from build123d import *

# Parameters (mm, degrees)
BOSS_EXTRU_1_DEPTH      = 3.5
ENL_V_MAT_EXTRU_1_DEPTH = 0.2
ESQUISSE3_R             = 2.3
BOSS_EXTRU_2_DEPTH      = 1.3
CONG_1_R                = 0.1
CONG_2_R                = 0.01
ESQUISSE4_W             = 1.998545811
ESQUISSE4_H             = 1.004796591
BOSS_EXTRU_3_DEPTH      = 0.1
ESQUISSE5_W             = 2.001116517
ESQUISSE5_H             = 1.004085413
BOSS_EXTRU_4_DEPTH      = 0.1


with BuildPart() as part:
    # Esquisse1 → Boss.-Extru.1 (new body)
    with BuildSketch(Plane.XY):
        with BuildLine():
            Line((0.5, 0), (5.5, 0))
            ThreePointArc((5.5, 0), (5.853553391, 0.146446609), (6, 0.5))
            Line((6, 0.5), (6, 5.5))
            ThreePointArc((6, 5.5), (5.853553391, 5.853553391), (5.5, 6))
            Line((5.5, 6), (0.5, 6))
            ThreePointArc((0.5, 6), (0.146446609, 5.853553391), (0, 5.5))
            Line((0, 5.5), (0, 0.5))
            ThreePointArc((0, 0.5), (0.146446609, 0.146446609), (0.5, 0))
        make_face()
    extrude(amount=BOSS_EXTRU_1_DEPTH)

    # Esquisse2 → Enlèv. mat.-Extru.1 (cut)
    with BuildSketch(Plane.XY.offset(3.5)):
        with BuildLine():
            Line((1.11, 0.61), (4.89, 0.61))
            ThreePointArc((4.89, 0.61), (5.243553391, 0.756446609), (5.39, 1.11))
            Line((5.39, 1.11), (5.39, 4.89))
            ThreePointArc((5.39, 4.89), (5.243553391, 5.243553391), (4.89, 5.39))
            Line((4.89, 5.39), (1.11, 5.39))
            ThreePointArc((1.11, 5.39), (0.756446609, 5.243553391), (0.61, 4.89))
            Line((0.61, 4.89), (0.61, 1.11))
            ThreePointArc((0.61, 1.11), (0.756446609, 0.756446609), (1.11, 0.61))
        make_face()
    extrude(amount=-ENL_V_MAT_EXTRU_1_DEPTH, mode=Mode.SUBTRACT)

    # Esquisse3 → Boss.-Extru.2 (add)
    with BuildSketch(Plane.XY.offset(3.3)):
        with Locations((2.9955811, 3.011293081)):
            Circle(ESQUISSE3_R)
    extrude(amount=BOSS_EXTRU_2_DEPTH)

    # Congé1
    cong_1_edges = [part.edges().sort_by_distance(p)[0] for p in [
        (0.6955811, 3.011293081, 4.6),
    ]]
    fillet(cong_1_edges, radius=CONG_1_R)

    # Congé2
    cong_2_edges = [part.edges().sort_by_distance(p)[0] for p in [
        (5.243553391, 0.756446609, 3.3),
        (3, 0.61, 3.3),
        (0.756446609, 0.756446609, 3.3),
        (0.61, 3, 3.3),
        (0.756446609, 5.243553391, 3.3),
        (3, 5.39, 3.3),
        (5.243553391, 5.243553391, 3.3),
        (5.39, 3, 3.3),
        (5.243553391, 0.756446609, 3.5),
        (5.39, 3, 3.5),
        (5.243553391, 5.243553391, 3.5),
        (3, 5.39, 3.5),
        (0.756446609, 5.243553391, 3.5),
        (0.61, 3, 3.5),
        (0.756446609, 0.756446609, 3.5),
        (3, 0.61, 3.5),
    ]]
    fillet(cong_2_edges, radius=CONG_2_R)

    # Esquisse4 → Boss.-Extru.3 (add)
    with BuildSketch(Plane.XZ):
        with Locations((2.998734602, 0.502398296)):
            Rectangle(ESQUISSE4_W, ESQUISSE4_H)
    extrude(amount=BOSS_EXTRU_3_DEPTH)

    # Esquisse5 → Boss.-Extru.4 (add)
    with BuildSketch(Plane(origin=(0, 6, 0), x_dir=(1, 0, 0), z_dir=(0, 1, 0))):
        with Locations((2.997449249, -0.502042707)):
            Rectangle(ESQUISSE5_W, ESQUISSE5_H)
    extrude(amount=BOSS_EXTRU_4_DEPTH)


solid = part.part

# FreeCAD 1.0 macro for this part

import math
import FreeCAD as App
import Part
import Sketcher

V = App.Vector
Q = App.Units.Quantity


def edges_at(feature, points):
    """Names of the edges that pass closest to the given points."""
    edges = feature.Shape.Edges
    near = lambda p: min(range(len(edges)), key=lambda i: edges[i].distToShape(Part.Vertex(*p))[0])
    return sorted({f"Edge{near(p) + 1}" for p in points})


def add_polygon(sketch, points):
    """Adds a closed chain of lines whose ends are joined by coincident constraints."""
    first, n = sketch.GeometryCount, len(points)
    for a, b in zip(points, points[1:] + points[:1]):
        sketch.addGeometry(Part.LineSegment(App.Vector(*a, 0), App.Vector(*b, 0)), False)
    for i in range(n):
        sketch.addConstraint(Sketcher.Constraint("Coincident", first + i, 2, first + (i + 1) % n, 1))

doc = App.newDocument("Part")
body = doc.addObject("PartDesign::Body", "Body")

sketch1 = body.newObject("Sketcher::SketchObject", "Sketch")
sketch1.AttachmentSupport = (doc.getObject("XY_Plane"), [""])
sketch1.MapMode = "FlatFace"
sketch1.addGeometry(Part.LineSegment(V(0.5, 0, 0), V(5.5, 0, 0)), False)
sketch1.addGeometry(Part.ArcOfCircle(Part.Circle(V(5.5, 0.5, 0), V(0, 0, 1), 0.5), math.radians(-90), math.radians(0)), False)
sketch1.addGeometry(Part.LineSegment(V(6, 0.5, 0), V(6, 5.5, 0)), False)
sketch1.addGeometry(Part.ArcOfCircle(Part.Circle(V(5.5, 5.5, 0), V(0, 0, 1), 0.5), math.radians(0), math.radians(90)), False)
sketch1.addGeometry(Part.LineSegment(V(5.5, 6, 0), V(0.5, 6, 0)), False)
sketch1.addGeometry(Part.ArcOfCircle(Part.Circle(V(0.5, 5.5, 0), V(0, 0, 1), 0.5), math.radians(90), math.radians(180)), False)
sketch1.addGeometry(Part.LineSegment(V(0, 5.5, 0), V(0, 0.5, 0)), False)
sketch1.addGeometry(Part.ArcOfCircle(Part.Circle(V(0.5, 0.5, 0), V(0, 0, 1), 0.5), math.radians(180), math.radians(270)), False)
sketch1.addConstraint(Sketcher.Constraint("Tangent", 0, 2, 1, 1))
sketch1.addConstraint(Sketcher.Constraint("Tangent", 1, 2, 2, 1))
sketch1.addConstraint(Sketcher.Constraint("Tangent", 2, 2, 3, 1))
sketch1.addConstraint(Sketcher.Constraint("Tangent", 3, 2, 4, 1))
sketch1.addConstraint(Sketcher.Constraint("Tangent", 4, 2, 5, 1))
sketch1.addConstraint(Sketcher.Constraint("Tangent", 5, 2, 6, 1))
sketch1.addConstraint(Sketcher.Constraint("Tangent", 6, 2, 7, 1))
sketch1.addConstraint(Sketcher.Constraint("Tangent", 7, 2, 0, 1))
sketch1.addConstraint(Sketcher.Constraint("Horizontal", 0))
sketch1.addConstraint(Sketcher.Constraint("Vertical", 2))
sketch1.addConstraint(Sketcher.Constraint("Horizontal", 4))
sketch1.addConstraint(Sketcher.Constraint("Vertical", 6))
sketch1.addConstraint(Sketcher.Constraint("Equal", 1, 3))
sketch1.addConstraint(Sketcher.Constraint("Equal", 3, 5))
sketch1.addConstraint(Sketcher.Constraint("Equal", 5, 7))
sketch1.addConstraint(Sketcher.Constraint("PointOnObject", 0, 2, -1))
sketch1.addConstraint(Sketcher.Constraint("PointOnObject", 5, 2, -2))
sketch1.addConstraint(Sketcher.Constraint("Equal", 4, 2))
sketch1.addConstraint(Sketcher.Constraint("Radius", 1, Q("0.5 mm")))
sketch1.addConstraint(Sketcher.Constraint("DistanceX", 0, 1, 0, 2, Q("5 mm")))
pad1 = body.newObject("PartDesign::Pad", "Pad")
pad1.Profile = sketch1
pad1.Length = 3.5

sketch2 = body.newObject("Sketcher::SketchObject", "Sketch001")
sketch2.AttachmentSupport = (doc.getObject("XY_Plane"), [""])
sketch2.MapMode = "FlatFace"
sketch2.AttachmentOffset = App.Placement(V(0, 0, 3.5), App.Rotation())
sketch2.addGeometry(Part.LineSegment(V(1.11, 0.61, 0), V(4.89, 0.61, 0)), False)
sketch2.addGeometry(Part.ArcOfCircle(Part.Circle(V(4.89, 1.11, 0), V(0, 0, 1), 0.5), math.radians(-90), math.radians(0)), False)
sketch2.addGeometry(Part.LineSegment(V(5.39, 1.11, 0), V(5.39, 4.89, 0)), False)
sketch2.addGeometry(Part.ArcOfCircle(Part.Circle(V(4.89, 4.89, 0), V(0, 0, 1), 0.5), math.radians(0), math.radians(90)), False)
sketch2.addGeometry(Part.LineSegment(V(4.89, 5.39, 0), V(1.11, 5.39, 0)), False)
sketch2.addGeometry(Part.ArcOfCircle(Part.Circle(V(1.11, 4.89, 0), V(0, 0, 1), 0.5), math.radians(90), math.radians(180)), False)
sketch2.addGeometry(Part.LineSegment(V(0.61, 4.89, 0), V(0.61, 1.11, 0)), False)
sketch2.addGeometry(Part.ArcOfCircle(Part.Circle(V(1.11, 1.11, 0), V(0, 0, 1), 0.5), math.radians(180), math.radians(270)), False)
sketch2.addConstraint(Sketcher.Constraint("Tangent", 0, 2, 1, 1))
sketch2.addConstraint(Sketcher.Constraint("Tangent", 1, 2, 2, 1))
sketch2.addConstraint(Sketcher.Constraint("Tangent", 2, 2, 3, 1))
sketch2.addConstraint(Sketcher.Constraint("Tangent", 3, 2, 4, 1))
sketch2.addConstraint(Sketcher.Constraint("Tangent", 4, 2, 5, 1))
sketch2.addConstraint(Sketcher.Constraint("Tangent", 5, 2, 6, 1))
sketch2.addConstraint(Sketcher.Constraint("Tangent", 6, 2, 7, 1))
sketch2.addConstraint(Sketcher.Constraint("Tangent", 7, 2, 0, 1))
sketch2.addConstraint(Sketcher.Constraint("Horizontal", 0))
sketch2.addConstraint(Sketcher.Constraint("Vertical", 2))
sketch2.addConstraint(Sketcher.Constraint("Horizontal", 4))
sketch2.addConstraint(Sketcher.Constraint("Vertical", 6))
sketch2.addConstraint(Sketcher.Constraint("Equal", 1, 3))
sketch2.addConstraint(Sketcher.Constraint("Equal", 3, 5))
sketch2.addConstraint(Sketcher.Constraint("Equal", 5, 7))
sketch2.addConstraint(Sketcher.Constraint("Equal", 4, 2))
sketch2.addConstraint(Sketcher.Constraint("Radius", 1, Q("0.5 mm")))
sketch2.addConstraint(Sketcher.Constraint("DistanceX", 0, 1, 0, 2, Q("3.78 mm")))
sketch2.addConstraint(Sketcher.Constraint("DistanceX", -1, 1, 1, 3, Q("4.89 mm")))
sketch2.addConstraint(Sketcher.Constraint("DistanceY", -1, 1, 1, 3, Q("1.11 mm")))
pocket1 = body.newObject("PartDesign::Pocket", "Pocket")
pocket1.Profile = sketch2
pocket1.Length = 0.2

sketch3 = body.newObject("Sketcher::SketchObject", "Sketch002")
sketch3.AttachmentSupport = (doc.getObject("XY_Plane"), [""])
sketch3.MapMode = "FlatFace"
sketch3.AttachmentOffset = App.Placement(V(0, 0, 3.3), App.Rotation())
sketch3.addGeometry(Part.Circle(V(3, 3, 0), V(0, 0, 1), 2.3), False)
sketch3.addConstraint(Sketcher.Constraint("Diameter", 0, Q("4.6 mm")))
sketch3.addConstraint(Sketcher.Constraint("DistanceX", -1, 1, 0, 3, Q("2.995581 mm")))
sketch3.addConstraint(Sketcher.Constraint("DistanceY", -1, 1, 0, 3, Q("3.011293 mm")))
pad2 = body.newObject("PartDesign::Pad", "Pad001")
pad2.Profile = sketch3
pad2.Length = 1.3
doc.recompute()

fillet = body.newObject("PartDesign::Fillet", "Fillet")
fillet.Base = (pad2, edges_at(pad2, [(0.696, 3.011, 4.6)]))
fillet.Radius = 0.1
doc.recompute()

fillet2 = body.newObject("PartDesign::Fillet", "Fillet001")
fillet2.Base = (fillet, edges_at(fillet, [
    (5.244, 0.756, 3.3),
    (3, 0.61, 3.3),
    (0.756, 0.756, 3.3),
    (0.61, 3, 3.3),
    (0.756, 5.244, 3.3),
    (3, 5.39, 3.3),
    (5.244, 5.244, 3.3),
    (5.39, 3, 3.3),
    (5.244, 0.756, 3.5),
    (5.39, 3, 3.5),
    (5.244, 5.244, 3.5),
    (3, 5.39, 3.5),
    (0.756, 5.244, 3.5),
    (0.61, 3, 3.5),
    (0.756, 0.756, 3.5),
    (3, 0.61, 3.5),
]))
fillet2.Radius = 0.01

sketch4 = body.newObject("Sketcher::SketchObject", "Sketch003")
sketch4.AttachmentSupport = (doc.getObject("XZ_Plane"), [""])
sketch4.MapMode = "FlatFace"
add_polygon(sketch4, [(2, 1), (2, 0), (4, 0), (4, 1)])
sketch4.addConstraint(Sketcher.Constraint("Vertical", 0))
sketch4.addConstraint(Sketcher.Constraint("Horizontal", 1))
sketch4.addConstraint(Sketcher.Constraint("Vertical", 2))
sketch4.addConstraint(Sketcher.Constraint("Horizontal", 3))
sketch4.addConstraint(Sketcher.Constraint("PointOnObject", 0, 2, -1))
sketch4.addConstraint(Sketcher.Constraint("DistanceX", 1, 1, 1, 2, Q("1.998546 mm")))
sketch4.addConstraint(Sketcher.Constraint("DistanceY", 0, 2, 0, 1, Q("1.004797 mm")))
sketch4.addConstraint(Sketcher.Constraint("DistanceX", -1, 1, 0, 2, Q("1.999462 mm")))
pad3 = body.newObject("PartDesign::Pad", "Pad002")
pad3.Profile = sketch4
pad3.Length = 0.1

sketch5 = body.newObject("Sketcher::SketchObject", "Sketch004")
sketch5.AttachmentSupport = (doc.getObject("XZ_Plane"), [""])
sketch5.MapMode = "FlatFace"
sketch5.AttachmentOffset = App.Placement(V(0, 0, -6), App.Rotation())
add_polygon(sketch5, [(2, 0), (2, 1), (4, 1), (4, 0)])
sketch5.addConstraint(Sketcher.Constraint("Vertical", 0))
sketch5.addConstraint(Sketcher.Constraint("Horizontal", 1))
sketch5.addConstraint(Sketcher.Constraint("Vertical", 2))
sketch5.addConstraint(Sketcher.Constraint("Horizontal", 3))
sketch5.addConstraint(Sketcher.Constraint("PointOnObject", 2, 2, -1))
sketch5.addConstraint(Sketcher.Constraint("DistanceX", 1, 1, 1, 2, Q("2.001117 mm")))
sketch5.addConstraint(Sketcher.Constraint("DistanceY", 0, 1, 0, 2, Q("1.004085 mm")))
sketch5.addConstraint(Sketcher.Constraint("DistanceX", -1, 1, 0, 2, Q("1.996891 mm")))
pad4 = body.newObject("PartDesign::Pad", "Pad003")
pad4.Profile = sketch5
pad4.Length = 0.1
pad4.Reversed = True

doc.recompute()
